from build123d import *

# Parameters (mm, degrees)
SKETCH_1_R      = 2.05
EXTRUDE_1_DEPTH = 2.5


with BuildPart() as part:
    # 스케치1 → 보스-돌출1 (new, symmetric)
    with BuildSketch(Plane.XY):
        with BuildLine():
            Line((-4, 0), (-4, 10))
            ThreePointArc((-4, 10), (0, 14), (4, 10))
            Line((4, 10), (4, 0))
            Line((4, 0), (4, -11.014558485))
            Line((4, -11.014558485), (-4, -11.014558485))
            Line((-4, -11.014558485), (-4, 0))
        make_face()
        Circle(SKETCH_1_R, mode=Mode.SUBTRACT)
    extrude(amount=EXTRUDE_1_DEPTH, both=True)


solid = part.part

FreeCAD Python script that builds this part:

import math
import FreeCAD as App
import Part
import Sketcher

doc = App.newDocument("Part")
body = doc.addObject("PartDesign::Body", "Body")

sketch1 = body.newObject("Sketcher::SketchObject", "Sketch")
sketch1.AttachmentSupport = (doc.getObject("XY_Plane"), [""])
sketch1.MapMode = "FlatFace"
sketch1.addGeometry(Part.ArcOfCircle(Part.Circle(App.Vector(0, 10, 0), App.Vector(0, 0, 1), 4), math.radians(0), math.radians(180)), False)
sketch1.addGeometry(Part.LineSegment(App.Vector(-4, 10, 0), App.Vector(-4, -11.014558, 0)), False)
sketch1.addGeometry(Part.LineSegment(App.Vector(-4, -11.014558, 0), App.Vector(4, -11.014558, 0)), False)
sketch1.addGeometry(Part.LineSegment(App.Vector(4, -11.014558, 0), App.Vector(4, 10, 0)), False)
sketch1.addGeometry(Part.Circle(App.Vector(0, 0, 0), App.Vector(0, 0, 1), 2.05), False)
sketch1.addConstraint(Sketcher.Constraint("Tangent", 0, 2, 1, 1))
sketch1.addConstraint(Sketcher.Constraint("Coincident", 1, 2, 2, 1))
sketch1.addConstraint(Sketcher.Constraint("Coincident", 2, 2, 3, 1))
sketch1.addConstraint(Sketcher.Constraint("Tangent", 3, 2, 0, 1))
sketch1.addConstraint(Sketcher.Constraint("Vertical", 1))
sketch1.addConstraint(Sketcher.Constraint("Horizontal", 2))
sketch1.addConstraint(Sketcher.Constraint("Vertical", 3))
sketch1.addConstraint(Sketcher.Constraint("Coincident", 4, 3, -1, 1))
sketch1.addConstraint(Sketcher.Constraint("PointOnObject", 0, 3, -2))
sketch1.addConstraint(Sketcher.Constraint("Radius", 0, 4.0))
sketch1.addConstraint(Sketcher.Constraint("Diameter", 4, 4.1))
sketch1.addConstraint(Sketcher.Constraint("DistanceY", -1, 1, 0, 3, 10.0))
sketch1.addConstraint(Sketcher.Constraint("DistanceY", 1, 2, 1, 1, 21.014558))
pad1 = body.newObject("PartDesign::Pad", "Pad")
pad1.Profile = sketch1
pad1.Length = 5
pad1.Midplane = True

doc.recompute()
